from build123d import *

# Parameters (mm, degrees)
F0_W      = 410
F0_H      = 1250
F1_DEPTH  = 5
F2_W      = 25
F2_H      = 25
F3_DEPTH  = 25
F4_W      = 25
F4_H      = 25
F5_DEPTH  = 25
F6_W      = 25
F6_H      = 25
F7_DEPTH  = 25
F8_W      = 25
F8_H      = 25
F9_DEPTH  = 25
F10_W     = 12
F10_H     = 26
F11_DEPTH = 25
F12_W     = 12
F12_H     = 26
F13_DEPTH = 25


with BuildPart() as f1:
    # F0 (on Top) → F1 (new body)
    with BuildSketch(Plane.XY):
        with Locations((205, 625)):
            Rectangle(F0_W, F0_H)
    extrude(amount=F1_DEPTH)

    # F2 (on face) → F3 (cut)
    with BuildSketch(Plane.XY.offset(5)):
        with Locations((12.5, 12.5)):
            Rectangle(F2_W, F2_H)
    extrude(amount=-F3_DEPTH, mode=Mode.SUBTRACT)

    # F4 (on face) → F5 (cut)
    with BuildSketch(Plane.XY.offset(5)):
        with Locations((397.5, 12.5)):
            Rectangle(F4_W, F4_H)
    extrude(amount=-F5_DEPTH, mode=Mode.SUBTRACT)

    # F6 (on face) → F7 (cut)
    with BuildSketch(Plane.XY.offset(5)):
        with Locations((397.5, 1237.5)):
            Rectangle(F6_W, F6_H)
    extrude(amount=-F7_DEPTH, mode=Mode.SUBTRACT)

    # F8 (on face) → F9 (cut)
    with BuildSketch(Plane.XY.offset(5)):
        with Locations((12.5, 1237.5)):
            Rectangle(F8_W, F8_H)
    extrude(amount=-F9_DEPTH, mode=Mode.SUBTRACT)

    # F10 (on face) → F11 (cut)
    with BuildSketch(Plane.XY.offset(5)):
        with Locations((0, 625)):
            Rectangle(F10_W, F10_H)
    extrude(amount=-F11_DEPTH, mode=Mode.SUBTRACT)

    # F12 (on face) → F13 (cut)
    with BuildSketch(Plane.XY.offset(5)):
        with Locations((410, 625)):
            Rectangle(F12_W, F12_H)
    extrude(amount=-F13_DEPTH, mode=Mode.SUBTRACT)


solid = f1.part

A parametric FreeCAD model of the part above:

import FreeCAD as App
import Part
import Sketcher

V = App.Vector
Q = App.Units.Quantity

doc = App.newDocument("Part")
body = doc.addObject("PartDesign::Body", "Body")

sketch1 = body.newObject("Sketcher::SketchObject", "Sketch")
sketch1.AttachmentSupport = (doc.getObject("XY_Plane"), [""])
sketch1.MapMode = "FlatFace"
sketch1.addGeometry([
    Part.LineSegment(V(0, 1250, 0), V(0, 0, 0)),
    Part.LineSegment(V(0, 0, 0), V(410, 0, 0)),
    Part.LineSegment(V(410, 0, 0), V(410, 1250, 0)),
    Part.LineSegment(V(410, 1250, 0), V(0, 1250, 0)),
], False)
sketch1.addConstraint([
    Sketcher.Constraint("Coincident", 0, 2, 1, 1),
    Sketcher.Constraint("Coincident", 1, 2, 2, 1),
    Sketcher.Constraint("Coincident", 2, 2, 3, 1),
    Sketcher.Constraint("Coincident", 3, 2, 0, 1),
    Sketcher.Constraint("Vertical", 0),
    Sketcher.Constraint("Horizontal", 1),
    Sketcher.Constraint("Vertical", 2),
    Sketcher.Constraint("Horizontal", 3),
    Sketcher.Constraint("Coincident", 0, 2, -1, 1),
    Sketcher.Constraint("DistanceX", 1, 1, 1, 2, Q("410 mm")),
    Sketcher.Constraint("DistanceY", 0, 2, 0, 1, Q("1250 mm")),
])
pad1 = body.newObject("PartDesign::Pad", "Pad")
pad1.Profile = sketch1
pad1.Length = 5

sketch2 = body.newObject("Sketcher::SketchObject", "Sketch001")
sketch2.AttachmentSupport = (doc.getObject("XY_Plane"), [""])
sketch2.MapMode = "FlatFace"
sketch2.AttachmentOffset = App.Placement(V(0, 0, 5), App.Rotation())
sketch2.addGeometry([
    Part.LineSegment(V(0, 25, 0), V(0, 0, 0)),
    Part.LineSegment(V(0, 0, 0), V(25, 0, 0)),
    Part.LineSegment(V(25, 0, 0), V(25, 25, 0)),
    Part.LineSegment(V(25, 25, 0), V(0, 25, 0)),
], False)
sketch2.addConstraint([
    Sketcher.Constraint("Coincident", 0, 2, 1, 1),
    Sketcher.Constraint("Coincident", 1, 2, 2, 1),
    Sketcher.Constraint("Coincident", 2, 2, 3, 1),
    Sketcher.Constraint("Coincident", 3, 2, 0, 1),
    Sketcher.Constraint("Vertical", 0),
    Sketcher.Constraint("Horizontal", 1),
    Sketcher.Constraint("Vertical", 2),
    Sketcher.Constraint("Horizontal", 3),
    Sketcher.Constraint("Coincident", 0, 2, -1, 1),
    Sketcher.Constraint("Equal", 3, 0),
    Sketcher.Constraint("DistanceX", 1, 1, 1, 2, Q("25 mm")),
])
pocket1 = body.newObject("PartDesign::Pocket", "Pocket")
pocket1.Profile = sketch2
pocket1.Length = 25

sketch3 = body.newObject("Sketcher::SketchObject", "Sketch002")
sketch3.AttachmentSupport = (doc.getObject("XY_Plane"), [""])
sketch3.MapMode = "FlatFace"
sketch3.AttachmentOffset = App.Placement(V(0, 0, 5), App.Rotation())
sketch3.addGeometry([
    Part.LineSegment(V(385, 25, 0), V(385, 0, 0)),
    Part.LineSegment(V(385, 0, 0), V(410, 0, 0)),
    Part.LineSegment(V(410, 0, 0), V(410, 25, 0)),
    Part.LineSegment(V(410, 25, 0), V(385, 25, 0)),
], False)
sketch3.addConstraint([
    Sketcher.Constraint("Coincident", 0, 2, 1, 1),
    Sketcher.Constraint("Coincident", 1, 2, 2, 1),
    Sketcher.Constraint("Coincident", 2, 2, 3, 1),
    Sketcher.Constraint("Coincident", 3, 2, 0, 1),
    Sketcher.Constraint("Vertical", 0),
    Sketcher.Constraint("Horizontal", 1),
    Sketcher.Constraint("Vertical", 2),
    Sketcher.Constraint("Horizontal", 3),
    Sketcher.Constraint("PointOnObject", 0, 2, -1),
    Sketcher.Constraint("Equal", 3, 0),
    Sketcher.Constraint("DistanceX", 1, 1, 1, 2, Q("25 mm")),
    Sketcher.Constraint("DistanceX", -1, 1, 0, 2, Q("385 mm")),
])
pocket2 = body.newObject("PartDesign::Pocket", "Pocket001")
pocket2.Profile = sketch3
pocket2.Length = 25

sketch4 = body.newObject("Sketcher::SketchObject", "Sketch003")
sketch4.AttachmentSupport = (doc.getObject("XY_Plane"), [""])
sketch4.MapMode = "FlatFace"
sketch4.AttachmentOffset = App.Placement(V(0, 0, 5), App.Rotation())
sketch4.addGeometry([
    Part.LineSegment(V(385, 1250, 0), V(385, 1225, 0)),
    Part.LineSegment(V(385, 1225, 0), V(410, 1225, 0)),
    Part.LineSegment(V(410, 1225, 0), V(410, 1250, 0)),
    Part.LineSegment(V(410, 1250, 0), V(385, 1250, 0)),
], False)
sketch4.addConstraint([
    Sketcher.Constraint("Coincident", 0, 2, 1, 1),
    Sketcher.Constraint("Coincident", 1, 2, 2, 1),
    Sketcher.Constraint("Coincident", 2, 2, 3, 1),
    Sketcher.Constraint("Coincident", 3, 2, 0, 1),
    Sketcher.Constraint("Vertical", 0),
    Sketcher.Constraint("Horizontal", 1),
    Sketcher.Constraint("Vertical", 2),
    Sketcher.Constraint("Horizontal", 3),
    Sketcher.Constraint("Equal", 3, 0),
    Sketcher.Constraint("DistanceX", 1, 1, 1, 2, Q("25 mm")),
    Sketcher.Constraint("DistanceX", -1, 1, 0, 2, Q("385 mm")),
    Sketcher.Constraint("DistanceY", -1, 1, 0, 2, Q("1225 mm")),
])
pocket3 = body.newObject("PartDesign::Pocket", "Pocket002")
pocket3.Profile = sketch4
pocket3.Length = 25

sketch5 = body.newObject("Sketcher::SketchObject", "Sketch004")
sketch5.AttachmentSupport = (doc.getObject("XY_Plane"), [""])
sketch5.MapMode = "FlatFace"
sketch5.AttachmentOffset = App.Placement(V(0, 0, 5), App.Rotation())
sketch5.addGeometry([
    Part.LineSegment(V(0, 1250, 0), V(0, 1225, 0)),
    Part.LineSegment(V(0, 1225, 0), V(25, 1225, 0)),
    Part.LineSegment(V(25, 1225, 0), V(25, 1250, 0)),
    Part.LineSegment(V(25, 1250, 0), V(0, 1250, 0)),
], False)
sketch5.addConstraint([
    Sketcher.Constraint("Coincident", 0, 2, 1, 1),
    Sketcher.Constraint("Coincident", 1, 2, 2, 1),
    Sketcher.Constraint("Coincident", 2, 2, 3, 1),
    Sketcher.Constraint("Coincident", 3, 2, 0, 1),
    Sketcher.Constraint("Vertical", 0),
    Sketcher.Constraint("Horizontal", 1),
    Sketcher.Constraint("Vertical", 2),
    Sketcher.Constraint("Horizontal", 3),
    Sketcher.Constraint("PointOnObject", 0, 2, -2),
    Sketcher.Constraint("Equal", 3, 0),
    Sketcher.Constraint("DistanceX", 1, 1, 1, 2, Q("25 mm")),
    Sketcher.Constraint("DistanceY", -1, 1, 0, 2, Q("1225 mm")),
])
pocket4 = body.newObject("PartDesign::Pocket", "Pocket003")
pocket4.Profile = sketch5
pocket4.Length = 25

sketch6 = body.newObject("Sketcher::SketchObject", "Sketch005")
sketch6.AttachmentSupport = (doc.getObject("XY_Plane"), [""])
sketch6.MapMode = "FlatFace"
sketch6.AttachmentOffset = App.Placement(V(0, 0, 5), App.Rotation())
sketch6.addGeometry([
    Part.LineSegment(V(-6, 638, 0), V(-6, 612, 0)),
    Part.LineSegment(V(-6, 612, 0), V(6, 612, 0)),
    Part.LineSegment(V(6, 612, 0), V(6, 638, 0)),
    Part.LineSegment(V(6, 638, 0), V(-6, 638, 0)),
], False)
sketch6.addConstraint([
    Sketcher.Constraint("Coincident", 0, 2, 1, 1),
    Sketcher.Constraint("Coincident", 1, 2, 2, 1),
    Sketcher.Constraint("Coincident", 2, 2, 3, 1),
    Sketcher.Constraint("Coincident", 3, 2, 0, 1),
    Sketcher.Constraint("Vertical", 0),
    Sketcher.Constraint("Horizontal", 1),
    Sketcher.Constraint("Vertical", 2),
    Sketcher.Constraint("Horizontal", 3),
    Sketcher.Constraint("DistanceX", 1, 1, 1, 2, Q("12 mm")),
    Sketcher.Constraint("DistanceY", 0, 2, 0, 1, Q("26 mm")),
    Sketcher.Constraint("DistanceX", 0, 2, -1, 1, Q("6 mm")),
    Sketcher.Constraint("DistanceY", -1, 1, 0, 2, Q("612 mm")),
])
pocket5 = body.newObject("PartDesign::Pocket", "Pocket004")
pocket5.Profile = sketch6
pocket5.Length = 25

sketch7 = body.newObject("Sketcher::SketchObject", "Sketch006")
sketch7.AttachmentSupport = (doc.getObject("XY_Plane"), [""])
sketch7.MapMode = "FlatFace"
sketch7.AttachmentOffset = App.Placement(V(0, 0, 5), App.Rotation())
sketch7.addGeometry([
    Part.LineSegment(V(404, 638, 0), V(404, 612, 0)),
    Part.LineSegment(V(404, 612, 0), V(416, 612, 0)),
    Part.LineSegment(V(416, 612, 0), V(416, 638, 0)),
    Part.LineSegment(V(416, 638, 0), V(404, 638, 0)),
], False)
sketch7.addConstraint([
    Sketcher.Constraint("Coincident", 0, 2, 1, 1),
    Sketcher.Constraint("Coincident", 1, 2, 2, 1),
    Sketcher.Constraint("Coincident", 2, 2, 3, 1),
    Sketcher.Constraint("Coincident", 3, 2, 0, 1),
    Sketcher.Constraint("Vertical", 0),
    Sketcher.Constraint("Horizontal", 1),
    Sketcher.Constraint("Vertical", 2),
    Sketcher.Constraint("Horizontal", 3),
    Sketcher.Constraint("DistanceX", 1, 1, 1, 2, Q("12 mm")),
    Sketcher.Constraint("DistanceY", 0, 2, 0, 1, Q("26 mm")),
    Sketcher.Constraint("DistanceX", -1, 1, 0, 2, Q("404 mm")),
    Sketcher.Constraint("DistanceY", -1, 1, 0, 2, Q("612 mm")),
])
pocket6 = body.newObject("PartDesign::Pocket", "Pocket005")
pocket6.Profile = sketch7
pocket6.Length = 25

doc.recompute()
